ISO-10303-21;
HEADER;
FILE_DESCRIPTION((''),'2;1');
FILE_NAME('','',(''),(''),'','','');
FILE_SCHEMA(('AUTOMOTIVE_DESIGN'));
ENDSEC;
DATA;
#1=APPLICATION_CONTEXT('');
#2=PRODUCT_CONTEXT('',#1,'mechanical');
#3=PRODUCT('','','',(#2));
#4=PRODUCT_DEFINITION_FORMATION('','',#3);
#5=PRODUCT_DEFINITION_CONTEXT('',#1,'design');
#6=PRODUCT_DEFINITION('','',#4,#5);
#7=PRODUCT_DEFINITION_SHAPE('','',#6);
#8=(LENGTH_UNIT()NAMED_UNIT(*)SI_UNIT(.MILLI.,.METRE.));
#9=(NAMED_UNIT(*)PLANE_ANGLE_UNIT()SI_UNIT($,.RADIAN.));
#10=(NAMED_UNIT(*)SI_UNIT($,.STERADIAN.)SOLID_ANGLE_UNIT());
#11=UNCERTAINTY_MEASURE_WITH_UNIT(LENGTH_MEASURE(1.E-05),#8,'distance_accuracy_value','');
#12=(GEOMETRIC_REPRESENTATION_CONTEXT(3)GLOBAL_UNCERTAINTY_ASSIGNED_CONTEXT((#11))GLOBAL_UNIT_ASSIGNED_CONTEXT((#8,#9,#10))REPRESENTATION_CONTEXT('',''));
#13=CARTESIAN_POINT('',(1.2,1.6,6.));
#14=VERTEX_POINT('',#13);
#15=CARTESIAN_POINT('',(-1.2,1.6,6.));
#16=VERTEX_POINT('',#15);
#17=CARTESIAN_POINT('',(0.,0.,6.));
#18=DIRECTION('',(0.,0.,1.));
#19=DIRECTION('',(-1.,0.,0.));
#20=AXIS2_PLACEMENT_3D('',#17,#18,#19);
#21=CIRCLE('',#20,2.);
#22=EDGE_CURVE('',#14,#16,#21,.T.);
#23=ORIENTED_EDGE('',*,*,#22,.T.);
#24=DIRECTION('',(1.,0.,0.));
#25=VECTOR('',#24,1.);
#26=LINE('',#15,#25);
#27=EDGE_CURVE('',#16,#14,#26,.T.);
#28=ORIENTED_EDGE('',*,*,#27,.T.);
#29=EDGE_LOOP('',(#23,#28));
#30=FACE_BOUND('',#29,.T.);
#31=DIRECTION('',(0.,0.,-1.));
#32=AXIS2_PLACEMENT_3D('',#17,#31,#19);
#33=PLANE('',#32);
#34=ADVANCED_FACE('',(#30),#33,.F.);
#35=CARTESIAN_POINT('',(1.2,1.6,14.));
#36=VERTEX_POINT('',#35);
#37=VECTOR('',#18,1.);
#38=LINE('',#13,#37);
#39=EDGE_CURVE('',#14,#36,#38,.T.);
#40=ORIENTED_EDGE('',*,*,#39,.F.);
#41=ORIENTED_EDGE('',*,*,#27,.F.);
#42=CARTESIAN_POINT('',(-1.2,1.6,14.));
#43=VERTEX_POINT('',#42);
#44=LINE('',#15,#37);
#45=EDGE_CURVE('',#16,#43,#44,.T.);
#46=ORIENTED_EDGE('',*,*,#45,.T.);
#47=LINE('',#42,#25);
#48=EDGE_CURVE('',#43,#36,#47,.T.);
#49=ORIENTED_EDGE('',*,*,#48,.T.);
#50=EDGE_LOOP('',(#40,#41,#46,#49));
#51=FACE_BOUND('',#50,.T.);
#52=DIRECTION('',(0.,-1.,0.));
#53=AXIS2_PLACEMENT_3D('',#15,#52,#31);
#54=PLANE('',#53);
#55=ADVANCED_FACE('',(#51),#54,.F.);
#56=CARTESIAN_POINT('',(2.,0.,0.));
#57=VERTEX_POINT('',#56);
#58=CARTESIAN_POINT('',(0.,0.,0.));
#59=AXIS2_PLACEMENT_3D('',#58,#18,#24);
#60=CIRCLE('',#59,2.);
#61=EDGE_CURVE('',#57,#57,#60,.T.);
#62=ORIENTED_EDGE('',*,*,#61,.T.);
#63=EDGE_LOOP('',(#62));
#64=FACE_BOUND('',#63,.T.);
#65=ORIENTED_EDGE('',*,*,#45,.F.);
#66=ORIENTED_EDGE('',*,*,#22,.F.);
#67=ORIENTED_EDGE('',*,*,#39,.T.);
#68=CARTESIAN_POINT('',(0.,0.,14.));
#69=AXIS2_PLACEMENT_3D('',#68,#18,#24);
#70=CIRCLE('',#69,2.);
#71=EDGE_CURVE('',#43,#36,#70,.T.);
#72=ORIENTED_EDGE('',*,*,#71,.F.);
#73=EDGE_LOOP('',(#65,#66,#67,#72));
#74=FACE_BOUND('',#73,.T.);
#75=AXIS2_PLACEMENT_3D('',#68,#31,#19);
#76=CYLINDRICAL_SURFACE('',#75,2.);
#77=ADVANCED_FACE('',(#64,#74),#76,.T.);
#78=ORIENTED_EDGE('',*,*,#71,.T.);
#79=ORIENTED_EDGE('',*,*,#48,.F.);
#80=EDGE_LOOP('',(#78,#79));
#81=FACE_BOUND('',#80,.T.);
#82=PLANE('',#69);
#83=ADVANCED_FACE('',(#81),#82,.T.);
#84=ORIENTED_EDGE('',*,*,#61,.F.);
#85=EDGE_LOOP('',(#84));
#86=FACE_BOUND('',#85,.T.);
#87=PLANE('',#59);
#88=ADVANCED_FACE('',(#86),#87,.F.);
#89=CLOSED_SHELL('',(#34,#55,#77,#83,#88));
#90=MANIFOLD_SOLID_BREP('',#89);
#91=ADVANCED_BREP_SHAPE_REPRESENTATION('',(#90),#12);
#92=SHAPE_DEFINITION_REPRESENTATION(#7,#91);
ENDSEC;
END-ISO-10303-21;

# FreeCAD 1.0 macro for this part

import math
import FreeCAD as App
import Part
import Sketcher

V = App.Vector

doc = App.newDocument("Part")
body = doc.addObject("PartDesign::Body", "Body")

# Sketch on XY plane
sketch1 = body.newObject("Sketcher::SketchObject", "Sketch")
sketch1.AttachmentSupport = (doc.getObject("XY_Plane"), [""])
sketch1.MapMode = "FlatFace"
sketch1.addGeometry(Part.Circle(V(0, 0, 0), V(0, 0, 1), 2), False)
sketch1.addConstraint([
    Sketcher.Constraint("Coincident", 0, 3, -1, 1),
    Sketcher.Constraint("Diameter", 0, 4.0),
])
pad1 = body.newObject("PartDesign::Pad", "Pad")
pad1.Profile = sketch1
pad1.Length = 14

# Sketch on XY plane
sketch2 = body.newObject("Sketcher::SketchObject", "Sketch001")
sketch2.AttachmentSupport = (doc.getObject("XY_Plane"), [""])
sketch2.MapMode = "FlatFace"
sketch2.AttachmentOffset = App.Placement(V(0, 0, 6), App.Rotation())
sketch2.addGeometry([
    Part.LineSegment(V(-1.2, 1.6, 0), V(1.2, 1.6, 0)),
    Part.ArcOfCircle(Part.Circle(V(0, 0, 0), V(0, 0, 1), 2), math.radians(53.130102), math.radians(126.869898)),
], False)
sketch2.addConstraint([
    Sketcher.Constraint("Coincident", 0, 1, 1, 2),
    Sketcher.Constraint("Coincident", 1, 1, 0, 2),
    Sketcher.Constraint("Horizontal", 0),
    Sketcher.Constraint("Coincident", 1, 3, -1, 1),
    Sketcher.Constraint("Radius", 1, 2.0),
    Sketcher.Constraint("DistanceX", 0, 1, 0, 2, 2.4),
])
pocket1 = body.newObject("PartDesign::Pocket", "Pocket")
pocket1.Profile = sketch2
pocket1.Length = 8
pocket1.Reversed = True

doc.recompute()
